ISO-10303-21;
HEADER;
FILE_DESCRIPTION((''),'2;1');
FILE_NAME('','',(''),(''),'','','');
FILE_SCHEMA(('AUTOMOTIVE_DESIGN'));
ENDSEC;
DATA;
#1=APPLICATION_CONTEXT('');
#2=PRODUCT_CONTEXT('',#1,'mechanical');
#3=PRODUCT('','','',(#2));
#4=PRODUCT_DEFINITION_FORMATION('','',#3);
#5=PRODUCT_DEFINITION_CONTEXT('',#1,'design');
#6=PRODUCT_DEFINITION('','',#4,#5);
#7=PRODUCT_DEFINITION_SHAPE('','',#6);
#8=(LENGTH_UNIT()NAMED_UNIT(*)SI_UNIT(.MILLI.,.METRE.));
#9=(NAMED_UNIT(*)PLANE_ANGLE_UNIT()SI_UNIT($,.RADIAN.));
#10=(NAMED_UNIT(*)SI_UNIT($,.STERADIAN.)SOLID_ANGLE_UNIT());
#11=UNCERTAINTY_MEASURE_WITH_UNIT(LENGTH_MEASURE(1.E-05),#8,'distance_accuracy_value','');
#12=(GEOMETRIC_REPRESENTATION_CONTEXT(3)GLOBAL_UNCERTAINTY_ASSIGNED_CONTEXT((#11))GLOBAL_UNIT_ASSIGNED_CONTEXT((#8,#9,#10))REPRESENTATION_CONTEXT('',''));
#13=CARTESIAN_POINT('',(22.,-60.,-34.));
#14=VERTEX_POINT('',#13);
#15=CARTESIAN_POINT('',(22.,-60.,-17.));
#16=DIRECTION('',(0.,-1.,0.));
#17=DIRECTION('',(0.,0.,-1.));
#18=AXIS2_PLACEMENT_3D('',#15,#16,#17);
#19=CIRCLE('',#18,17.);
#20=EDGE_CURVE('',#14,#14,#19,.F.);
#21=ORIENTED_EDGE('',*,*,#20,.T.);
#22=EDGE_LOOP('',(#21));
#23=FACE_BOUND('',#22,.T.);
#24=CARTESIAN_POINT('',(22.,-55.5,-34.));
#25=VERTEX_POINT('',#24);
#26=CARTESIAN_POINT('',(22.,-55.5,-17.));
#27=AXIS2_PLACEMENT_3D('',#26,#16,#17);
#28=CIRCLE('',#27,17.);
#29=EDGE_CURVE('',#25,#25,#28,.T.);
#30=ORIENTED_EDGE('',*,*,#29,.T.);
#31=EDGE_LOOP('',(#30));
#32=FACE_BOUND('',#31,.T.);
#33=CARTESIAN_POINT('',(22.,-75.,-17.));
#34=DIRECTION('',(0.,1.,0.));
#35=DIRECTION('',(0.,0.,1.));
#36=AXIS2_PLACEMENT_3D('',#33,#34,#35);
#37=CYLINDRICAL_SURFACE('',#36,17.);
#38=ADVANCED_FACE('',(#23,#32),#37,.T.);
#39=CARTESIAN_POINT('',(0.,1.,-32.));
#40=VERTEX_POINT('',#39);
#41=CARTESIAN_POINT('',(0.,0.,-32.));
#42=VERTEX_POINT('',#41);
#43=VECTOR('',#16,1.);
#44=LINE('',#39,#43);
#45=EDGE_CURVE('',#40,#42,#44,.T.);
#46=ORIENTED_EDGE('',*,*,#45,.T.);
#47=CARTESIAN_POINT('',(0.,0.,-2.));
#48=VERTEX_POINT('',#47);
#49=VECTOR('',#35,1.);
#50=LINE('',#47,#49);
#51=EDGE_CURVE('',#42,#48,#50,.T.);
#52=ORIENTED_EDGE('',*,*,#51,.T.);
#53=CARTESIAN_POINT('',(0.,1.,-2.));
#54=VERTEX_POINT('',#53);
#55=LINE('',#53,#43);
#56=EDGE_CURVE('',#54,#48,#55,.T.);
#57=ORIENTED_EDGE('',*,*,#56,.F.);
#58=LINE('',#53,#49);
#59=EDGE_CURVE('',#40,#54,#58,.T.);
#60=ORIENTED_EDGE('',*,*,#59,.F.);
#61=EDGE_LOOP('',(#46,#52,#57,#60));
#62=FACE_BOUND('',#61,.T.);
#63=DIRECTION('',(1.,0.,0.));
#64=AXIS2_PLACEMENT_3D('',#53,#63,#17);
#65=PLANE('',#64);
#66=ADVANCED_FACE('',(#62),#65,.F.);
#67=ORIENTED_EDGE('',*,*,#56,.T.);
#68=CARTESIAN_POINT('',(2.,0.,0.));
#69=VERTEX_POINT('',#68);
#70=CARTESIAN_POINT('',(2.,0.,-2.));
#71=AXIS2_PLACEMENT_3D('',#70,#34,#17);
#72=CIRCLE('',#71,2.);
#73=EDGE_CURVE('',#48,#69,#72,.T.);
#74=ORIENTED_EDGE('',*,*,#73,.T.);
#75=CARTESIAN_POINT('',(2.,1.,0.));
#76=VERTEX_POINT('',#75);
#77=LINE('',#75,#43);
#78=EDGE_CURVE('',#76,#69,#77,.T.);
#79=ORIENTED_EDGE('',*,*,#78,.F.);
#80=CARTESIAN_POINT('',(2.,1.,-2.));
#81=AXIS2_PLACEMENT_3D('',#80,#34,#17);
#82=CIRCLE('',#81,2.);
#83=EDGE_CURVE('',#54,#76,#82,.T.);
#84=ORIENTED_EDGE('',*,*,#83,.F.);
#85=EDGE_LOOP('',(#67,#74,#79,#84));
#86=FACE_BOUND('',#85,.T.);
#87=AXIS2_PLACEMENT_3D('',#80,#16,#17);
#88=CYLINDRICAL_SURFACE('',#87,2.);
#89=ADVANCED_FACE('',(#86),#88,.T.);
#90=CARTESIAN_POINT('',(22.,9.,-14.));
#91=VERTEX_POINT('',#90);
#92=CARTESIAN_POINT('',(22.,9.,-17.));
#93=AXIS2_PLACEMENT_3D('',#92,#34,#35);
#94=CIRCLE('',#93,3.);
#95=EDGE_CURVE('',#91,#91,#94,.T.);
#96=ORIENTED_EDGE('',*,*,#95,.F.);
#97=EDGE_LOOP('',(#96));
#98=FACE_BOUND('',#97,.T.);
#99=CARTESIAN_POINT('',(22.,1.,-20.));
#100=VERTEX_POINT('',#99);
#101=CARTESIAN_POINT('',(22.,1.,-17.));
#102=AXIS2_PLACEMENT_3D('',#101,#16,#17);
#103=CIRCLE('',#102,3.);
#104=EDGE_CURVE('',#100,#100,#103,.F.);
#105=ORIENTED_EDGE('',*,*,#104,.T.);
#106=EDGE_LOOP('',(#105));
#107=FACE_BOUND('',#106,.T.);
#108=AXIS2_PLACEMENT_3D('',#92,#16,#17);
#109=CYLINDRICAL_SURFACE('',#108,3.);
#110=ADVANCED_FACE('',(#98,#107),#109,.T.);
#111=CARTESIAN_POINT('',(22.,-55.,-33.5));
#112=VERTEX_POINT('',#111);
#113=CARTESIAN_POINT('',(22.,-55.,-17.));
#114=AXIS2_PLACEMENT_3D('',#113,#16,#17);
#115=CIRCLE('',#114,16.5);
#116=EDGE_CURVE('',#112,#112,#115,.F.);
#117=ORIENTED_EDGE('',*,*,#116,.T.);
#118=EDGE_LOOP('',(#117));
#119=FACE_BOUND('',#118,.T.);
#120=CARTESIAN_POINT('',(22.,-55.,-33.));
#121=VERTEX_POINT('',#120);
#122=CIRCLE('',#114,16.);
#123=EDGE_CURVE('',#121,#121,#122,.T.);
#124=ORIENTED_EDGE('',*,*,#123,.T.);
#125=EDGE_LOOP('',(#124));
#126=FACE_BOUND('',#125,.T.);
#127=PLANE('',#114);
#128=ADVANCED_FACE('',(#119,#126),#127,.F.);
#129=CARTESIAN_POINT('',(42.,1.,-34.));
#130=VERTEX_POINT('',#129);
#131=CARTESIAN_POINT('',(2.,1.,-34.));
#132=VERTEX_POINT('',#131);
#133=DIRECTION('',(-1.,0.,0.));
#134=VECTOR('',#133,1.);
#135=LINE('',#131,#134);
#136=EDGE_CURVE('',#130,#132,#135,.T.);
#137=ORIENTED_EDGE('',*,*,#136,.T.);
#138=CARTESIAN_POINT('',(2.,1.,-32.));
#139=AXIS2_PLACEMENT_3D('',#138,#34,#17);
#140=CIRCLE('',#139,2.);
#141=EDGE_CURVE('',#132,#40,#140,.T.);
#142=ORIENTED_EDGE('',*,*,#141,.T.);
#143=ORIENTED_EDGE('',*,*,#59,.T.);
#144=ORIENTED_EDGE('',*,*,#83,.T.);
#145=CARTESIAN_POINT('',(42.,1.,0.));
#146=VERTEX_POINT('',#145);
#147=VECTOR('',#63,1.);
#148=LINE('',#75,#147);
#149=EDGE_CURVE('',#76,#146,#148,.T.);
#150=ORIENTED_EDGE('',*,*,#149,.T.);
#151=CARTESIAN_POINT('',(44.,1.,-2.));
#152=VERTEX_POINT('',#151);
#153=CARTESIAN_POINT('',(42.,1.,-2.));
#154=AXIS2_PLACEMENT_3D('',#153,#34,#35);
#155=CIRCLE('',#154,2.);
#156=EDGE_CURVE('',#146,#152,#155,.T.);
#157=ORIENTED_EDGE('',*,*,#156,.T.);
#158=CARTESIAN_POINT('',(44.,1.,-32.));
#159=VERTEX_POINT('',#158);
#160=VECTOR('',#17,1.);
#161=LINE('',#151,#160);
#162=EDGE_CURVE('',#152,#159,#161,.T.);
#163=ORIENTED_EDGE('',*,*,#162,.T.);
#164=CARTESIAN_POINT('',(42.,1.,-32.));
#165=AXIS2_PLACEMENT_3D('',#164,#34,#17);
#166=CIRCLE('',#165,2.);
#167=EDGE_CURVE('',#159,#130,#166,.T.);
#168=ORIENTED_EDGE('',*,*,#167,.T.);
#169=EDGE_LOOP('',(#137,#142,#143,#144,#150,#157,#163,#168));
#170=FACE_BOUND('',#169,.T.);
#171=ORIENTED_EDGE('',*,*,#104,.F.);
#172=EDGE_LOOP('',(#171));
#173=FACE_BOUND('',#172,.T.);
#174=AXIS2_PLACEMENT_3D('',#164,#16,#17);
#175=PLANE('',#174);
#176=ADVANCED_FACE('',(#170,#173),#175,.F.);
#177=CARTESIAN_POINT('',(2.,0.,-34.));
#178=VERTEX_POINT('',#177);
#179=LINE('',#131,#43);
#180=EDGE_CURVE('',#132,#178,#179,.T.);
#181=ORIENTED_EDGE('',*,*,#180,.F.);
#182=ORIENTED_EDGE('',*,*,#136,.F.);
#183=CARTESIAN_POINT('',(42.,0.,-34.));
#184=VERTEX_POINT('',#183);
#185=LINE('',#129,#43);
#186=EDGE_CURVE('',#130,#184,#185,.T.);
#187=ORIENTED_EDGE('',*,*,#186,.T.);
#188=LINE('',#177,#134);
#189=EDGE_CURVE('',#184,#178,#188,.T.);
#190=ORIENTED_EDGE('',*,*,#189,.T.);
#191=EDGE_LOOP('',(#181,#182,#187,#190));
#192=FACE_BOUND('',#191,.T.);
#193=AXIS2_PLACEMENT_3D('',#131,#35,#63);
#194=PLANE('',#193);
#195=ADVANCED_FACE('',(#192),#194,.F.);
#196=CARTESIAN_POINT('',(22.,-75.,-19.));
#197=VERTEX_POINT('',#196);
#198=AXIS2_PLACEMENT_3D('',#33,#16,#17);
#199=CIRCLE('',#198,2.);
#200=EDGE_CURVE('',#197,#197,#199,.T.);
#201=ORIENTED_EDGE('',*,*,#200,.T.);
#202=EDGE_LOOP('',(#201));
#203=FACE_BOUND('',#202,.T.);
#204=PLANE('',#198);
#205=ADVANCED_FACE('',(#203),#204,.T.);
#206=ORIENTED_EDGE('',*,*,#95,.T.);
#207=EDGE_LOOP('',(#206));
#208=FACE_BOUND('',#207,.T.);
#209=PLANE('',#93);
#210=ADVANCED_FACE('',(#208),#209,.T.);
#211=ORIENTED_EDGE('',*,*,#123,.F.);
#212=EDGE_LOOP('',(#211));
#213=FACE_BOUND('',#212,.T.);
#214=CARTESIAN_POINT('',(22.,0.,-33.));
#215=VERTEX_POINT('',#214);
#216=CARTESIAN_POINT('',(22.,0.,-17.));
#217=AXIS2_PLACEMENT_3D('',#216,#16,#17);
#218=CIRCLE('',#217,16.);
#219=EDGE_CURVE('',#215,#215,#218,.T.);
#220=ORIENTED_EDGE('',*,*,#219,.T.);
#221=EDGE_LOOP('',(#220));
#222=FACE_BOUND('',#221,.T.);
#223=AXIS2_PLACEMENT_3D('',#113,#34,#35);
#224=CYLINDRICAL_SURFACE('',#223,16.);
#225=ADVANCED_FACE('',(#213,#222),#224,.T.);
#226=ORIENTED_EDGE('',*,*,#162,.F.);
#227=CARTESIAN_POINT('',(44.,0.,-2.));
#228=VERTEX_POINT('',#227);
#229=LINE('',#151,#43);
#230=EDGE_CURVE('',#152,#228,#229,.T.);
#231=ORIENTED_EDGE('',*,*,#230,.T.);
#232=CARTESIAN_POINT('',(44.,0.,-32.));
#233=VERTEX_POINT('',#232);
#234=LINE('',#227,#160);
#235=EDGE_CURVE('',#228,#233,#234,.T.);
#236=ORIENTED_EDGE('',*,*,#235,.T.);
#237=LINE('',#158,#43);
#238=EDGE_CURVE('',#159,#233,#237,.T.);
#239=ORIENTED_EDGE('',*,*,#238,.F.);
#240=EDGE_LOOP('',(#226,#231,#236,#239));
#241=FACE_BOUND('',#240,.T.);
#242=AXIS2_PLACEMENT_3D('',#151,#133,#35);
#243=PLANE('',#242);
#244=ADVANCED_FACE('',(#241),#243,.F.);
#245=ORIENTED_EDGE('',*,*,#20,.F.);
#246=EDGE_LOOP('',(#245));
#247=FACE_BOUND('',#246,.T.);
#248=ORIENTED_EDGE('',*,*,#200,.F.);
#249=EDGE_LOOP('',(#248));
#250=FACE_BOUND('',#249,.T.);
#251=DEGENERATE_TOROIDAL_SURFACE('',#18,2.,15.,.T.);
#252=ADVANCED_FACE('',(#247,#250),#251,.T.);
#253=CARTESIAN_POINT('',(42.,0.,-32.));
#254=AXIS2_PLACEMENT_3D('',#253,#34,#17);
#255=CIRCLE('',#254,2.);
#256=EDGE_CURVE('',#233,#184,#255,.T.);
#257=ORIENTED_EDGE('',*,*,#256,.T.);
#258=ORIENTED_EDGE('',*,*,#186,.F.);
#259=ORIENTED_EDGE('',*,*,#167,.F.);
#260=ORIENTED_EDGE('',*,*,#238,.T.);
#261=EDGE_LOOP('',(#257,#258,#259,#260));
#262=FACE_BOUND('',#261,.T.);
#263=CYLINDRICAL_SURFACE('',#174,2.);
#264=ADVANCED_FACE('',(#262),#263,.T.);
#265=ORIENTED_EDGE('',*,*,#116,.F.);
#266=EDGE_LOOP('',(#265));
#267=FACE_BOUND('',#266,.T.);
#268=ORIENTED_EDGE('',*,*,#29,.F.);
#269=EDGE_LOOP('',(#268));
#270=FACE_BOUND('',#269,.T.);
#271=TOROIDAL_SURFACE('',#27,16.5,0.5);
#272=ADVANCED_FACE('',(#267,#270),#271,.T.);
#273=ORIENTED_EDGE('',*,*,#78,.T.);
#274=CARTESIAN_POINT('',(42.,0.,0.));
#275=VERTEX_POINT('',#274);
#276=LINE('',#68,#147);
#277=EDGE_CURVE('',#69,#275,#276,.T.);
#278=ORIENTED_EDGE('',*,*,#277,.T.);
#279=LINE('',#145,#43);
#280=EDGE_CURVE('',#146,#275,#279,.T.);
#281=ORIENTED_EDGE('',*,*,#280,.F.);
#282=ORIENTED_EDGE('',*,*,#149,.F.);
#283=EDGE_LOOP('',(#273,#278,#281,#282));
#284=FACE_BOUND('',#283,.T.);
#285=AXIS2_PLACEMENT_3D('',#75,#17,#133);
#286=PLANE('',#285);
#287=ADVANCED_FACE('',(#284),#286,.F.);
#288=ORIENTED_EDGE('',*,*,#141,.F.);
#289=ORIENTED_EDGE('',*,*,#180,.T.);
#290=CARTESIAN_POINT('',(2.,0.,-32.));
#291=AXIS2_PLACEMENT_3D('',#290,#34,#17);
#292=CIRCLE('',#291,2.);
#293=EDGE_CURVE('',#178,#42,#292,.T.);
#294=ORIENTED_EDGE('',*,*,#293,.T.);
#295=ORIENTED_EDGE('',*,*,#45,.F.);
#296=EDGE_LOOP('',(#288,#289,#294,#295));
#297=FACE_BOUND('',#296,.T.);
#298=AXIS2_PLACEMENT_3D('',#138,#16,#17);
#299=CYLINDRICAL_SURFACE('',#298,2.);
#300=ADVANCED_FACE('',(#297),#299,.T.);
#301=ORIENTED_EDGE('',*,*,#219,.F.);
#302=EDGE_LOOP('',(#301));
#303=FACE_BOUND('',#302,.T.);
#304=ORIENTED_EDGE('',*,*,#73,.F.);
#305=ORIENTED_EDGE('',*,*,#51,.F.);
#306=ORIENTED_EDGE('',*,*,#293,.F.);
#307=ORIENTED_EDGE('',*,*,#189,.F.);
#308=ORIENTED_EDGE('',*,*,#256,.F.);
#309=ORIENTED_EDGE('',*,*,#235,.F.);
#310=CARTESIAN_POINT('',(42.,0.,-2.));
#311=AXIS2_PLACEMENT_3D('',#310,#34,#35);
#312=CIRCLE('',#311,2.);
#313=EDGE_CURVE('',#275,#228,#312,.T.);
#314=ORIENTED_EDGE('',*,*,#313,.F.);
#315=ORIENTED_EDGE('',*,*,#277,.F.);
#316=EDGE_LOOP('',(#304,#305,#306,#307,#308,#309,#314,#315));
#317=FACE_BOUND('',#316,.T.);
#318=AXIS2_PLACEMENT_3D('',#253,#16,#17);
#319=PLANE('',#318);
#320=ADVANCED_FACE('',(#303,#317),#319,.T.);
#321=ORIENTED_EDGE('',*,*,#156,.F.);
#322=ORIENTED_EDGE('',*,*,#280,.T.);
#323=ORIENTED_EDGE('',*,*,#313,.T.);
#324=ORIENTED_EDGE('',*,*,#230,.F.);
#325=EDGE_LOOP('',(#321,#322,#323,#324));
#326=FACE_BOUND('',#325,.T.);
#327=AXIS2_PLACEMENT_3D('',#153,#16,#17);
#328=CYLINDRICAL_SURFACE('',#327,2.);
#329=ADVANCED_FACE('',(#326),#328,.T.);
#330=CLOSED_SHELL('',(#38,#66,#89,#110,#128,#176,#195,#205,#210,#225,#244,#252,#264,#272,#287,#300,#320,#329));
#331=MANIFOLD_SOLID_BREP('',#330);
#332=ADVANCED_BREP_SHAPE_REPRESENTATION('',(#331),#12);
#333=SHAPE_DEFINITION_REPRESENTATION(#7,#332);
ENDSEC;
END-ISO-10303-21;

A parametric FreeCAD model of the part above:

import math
import FreeCAD as App
import Part
import Sketcher
from FreeCAD import Vector
Q = App.Units.Quantity


def edges_at(feature, points):
    """Names of the edges that pass closest to the given points."""
    edges = feature.Shape.Edges
    near = lambda p: min(range(len(edges)), key=lambda i: edges[i].distToShape(Part.Vertex(*p))[0])
    return sorted({f"Edge{near(p) + 1}" for p in points})

doc = App.newDocument("Part")
body = doc.addObject("PartDesign::Body", "Body")

# Sketch on XZ plane
sketch1 = body.newObject("Sketcher::SketchObject", "Sketch")
sketch1.AttachmentSupport = (doc.getObject("XZ_Plane"), [""])
sketch1.MapMode = "FlatFace"
sketch1.addGeometry([
    Part.LineSegment(Vector(2, 0, 0), Vector(42, 0, 0)),  # 0
    Part.ArcOfCircle(Part.Circle(Vector(42, -2, 0), Vector(0, 0, 1), 2), math.radians(0), math.radians(90)),  # 1
    Part.LineSegment(Vector(44, -2, 0), Vector(44, -32, 0)),  # 2
    Part.ArcOfCircle(Part.Circle(Vector(42, -32, 0), Vector(0, 0, 1), 2), math.radians(-90), math.radians(0)),  # 3
    Part.LineSegment(Vector(42, -34, 0), Vector(2, -34, 0)),  # 4
    Part.ArcOfCircle(Part.Circle(Vector(2, -32, 0), Vector(0, 0, 1), 2), math.radians(-180), math.radians(-90)),  # 5
    Part.LineSegment(Vector(0, -32, 0), Vector(0, -2, 0)),  # 6
    Part.ArcOfCircle(Part.Circle(Vector(2, -2, 0), Vector(0, 0, 1), 2), math.radians(90), math.radians(180)),  # 7
], False)
sketch1.addConstraint([
    Sketcher.Constraint("Tangent", 0, 2, 1, 2),
    Sketcher.Constraint("Tangent", 1, 1, 2, 1),
    Sketcher.Constraint("Tangent", 2, 2, 3, 2),
    Sketcher.Constraint("Tangent", 3, 1, 4, 1),
    Sketcher.Constraint("Tangent", 4, 2, 5, 2),
    Sketcher.Constraint("Tangent", 5, 1, 6, 1),
    Sketcher.Constraint("Tangent", 6, 2, 7, 2),
    Sketcher.Constraint("Tangent", 7, 1, 0, 1),
    Sketcher.Constraint("Horizontal", 0),
    Sketcher.Constraint("Vertical", 2),
    Sketcher.Constraint("Horizontal", 4),
    Sketcher.Constraint("Vertical", 6),
    Sketcher.Constraint("Equal", 1, 3),
    Sketcher.Constraint("Equal", 3, 5),
    Sketcher.Constraint("Equal", 5, 7),
    Sketcher.Constraint("PointOnObject", 0, 2, -1),
    Sketcher.Constraint("PointOnObject", 5, 1, -2),
    Sketcher.Constraint("Radius", 1, Q("2 mm")),
    Sketcher.Constraint("DistanceX", 0, 1, 0, 2, Q("40 mm")),
    Sketcher.Constraint("DistanceY", 2, 2, 2, 1, Q("30 mm")),
])
pad1 = body.newObject("PartDesign::Pad", "Pad")
pad1.Profile = sketch1
pad1.Length = 1
pad1.Reversed = True

# Sketch on XZ plane
sketch2 = body.newObject("Sketcher::SketchObject", "Sketch001")
sketch2.AttachmentSupport = (doc.getObject("XZ_Plane"), [""])
sketch2.MapMode = "FlatFace"
sketch2.addGeometry(Part.Circle(Vector(22, -17, 0), Vector(0, 0, 1), 16), False)
sketch2.addConstraint([
    Sketcher.Constraint("Diameter", 0, Q("32 mm")),
    Sketcher.Constraint("DistanceX", -1, 1, 0, 3, Q("22 mm")),
    Sketcher.Constraint("DistanceY", 0, 3, -1, 1, Q("17 mm")),
])
pad2 = body.newObject("PartDesign::Pad", "Pad001")
pad2.Profile = sketch2
pad2.Length = 55

# Sketch on XZ plane
sketch3 = body.newObject("Sketcher::SketchObject", "Sketch002")
sketch3.AttachmentSupport = (doc.getObject("XZ_Plane"), [""])
sketch3.MapMode = "FlatFace"
sketch3.AttachmentOffset = App.Placement(Vector(0, 0, 55), App.Rotation())
sketch3.addGeometry(Part.Circle(Vector(22, -17, 0), Vector(0, 0, 1), 17), False)
sketch3.addConstraint([
    Sketcher.Constraint("Diameter", 0, Q("34 mm")),
    Sketcher.Constraint("DistanceX", -1, 1, 0, 3, Q("22 mm")),
    Sketcher.Constraint("DistanceY", 0, 3, -1, 1, Q("17 mm")),
])
pad3 = body.newObject("PartDesign::Pad", "Pad002")
pad3.Profile = sketch3
pad3.Length = 20
doc.recompute()

fillet = body.newObject("PartDesign::Fillet", "Fillet")
fillet.Base = (pad3, edges_at(pad3, [(22, -75, 0)]))
fillet.Radius = 15
doc.recompute()

fillet2 = body.newObject("PartDesign::Fillet", "Fillet001")
fillet2.Base = (fillet, edges_at(fillet, [(22, -55, 0)]))
fillet2.Radius = 0.5

# Sketch on XZ plane
sketch4 = body.newObject("Sketcher::SketchObject", "Sketch003")
sketch4.AttachmentSupport = (doc.getObject("XZ_Plane"), [""])
sketch4.MapMode = "FlatFace"
sketch4.AttachmentOffset = App.Placement(Vector(0, 0, -1), App.Rotation())
sketch4.addGeometry(Part.Circle(Vector(22, -17, 0), Vector(0, 0, 1), 3), False)
sketch4.addConstraint([
    Sketcher.Constraint("Diameter", 0, Q("6 mm")),
    Sketcher.Constraint("DistanceX", -1, 1, 0, 3, Q("22 mm")),
    Sketcher.Constraint("DistanceY", 0, 3, -1, 1, Q("17 mm")),
])
pad4 = body.newObject("PartDesign::Pad", "Pad003")
pad4.Profile = sketch4
pad4.Length = 8
pad4.Reversed = True

doc.recompute()
